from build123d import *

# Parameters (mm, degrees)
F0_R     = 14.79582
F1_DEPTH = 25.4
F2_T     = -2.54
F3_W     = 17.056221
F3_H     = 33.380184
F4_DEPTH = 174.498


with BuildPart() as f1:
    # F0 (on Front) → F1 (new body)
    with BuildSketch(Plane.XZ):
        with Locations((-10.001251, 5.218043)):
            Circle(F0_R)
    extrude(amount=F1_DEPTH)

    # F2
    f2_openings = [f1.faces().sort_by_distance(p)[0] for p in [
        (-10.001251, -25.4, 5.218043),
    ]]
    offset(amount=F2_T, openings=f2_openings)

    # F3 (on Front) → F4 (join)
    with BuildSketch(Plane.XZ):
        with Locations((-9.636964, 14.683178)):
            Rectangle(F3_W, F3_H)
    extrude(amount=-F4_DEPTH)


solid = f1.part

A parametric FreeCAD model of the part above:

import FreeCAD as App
import Part
import Sketcher
from FreeCAD import Vector
Q = App.Units.Quantity


def faces_at(feature, points):
    """Names of the faces that lie closest to the given points."""
    faces = feature.Shape.Faces
    near = lambda p: min(range(len(faces)), key=lambda i: faces[i].distToShape(Part.Vertex(*p))[0])
    return sorted({f"Face{near(p) + 1}" for p in points})

doc = App.newDocument("Part")
body = doc.addObject("PartDesign::Body", "Body")

# Sketch on XZ plane
sketch1 = body.newObject("Sketcher::SketchObject", "Sketch")
sketch1.AttachmentSupport = (doc.getObject("XZ_Plane"), [""])
sketch1.MapMode = "FlatFace"
sketch1.addGeometry(Part.Circle(Vector(-10.001251, 5.218043, 0), Vector(0, 0, 1), 14.79582), False)
sketch1.addConstraint(Sketcher.Constraint("Diameter", 0, Q("29.59164 mm")))
sketch1.addConstraint(Sketcher.Constraint("DistanceX", 0, 3, -1, 1, Q("10.001251 mm")))
sketch1.addConstraint(Sketcher.Constraint("DistanceY", -1, 1, 0, 3, Q("5.218043 mm")))
pad1 = body.newObject("PartDesign::Pad", "Pad")
pad1.Profile = sketch1
pad1.Length = Q("1 in")
doc.recompute()

thickness = body.newObject("PartDesign::Thickness", "Thickness")
thickness.Base = (pad1, faces_at(pad1, [(-10.001, -25.4, 5.218)]))
thickness.Value = Q("0.1 in")
thickness.Reversed = True
thickness.Join = "Arc"

# Sketch on XZ plane
sketch2 = body.newObject("Sketcher::SketchObject", "Sketch001")
sketch2.AttachmentSupport = (doc.getObject("XZ_Plane"), [""])
sketch2.MapMode = "FlatFace"
sketch2.addGeometry(Part.LineSegment(Vector(-18.165074, 31.37327, 0), Vector(-18.165074, -2.006914, 0)), False)
sketch2.addGeometry(Part.LineSegment(Vector(-18.165074, -2.006914, 0), Vector(-1.108853, -2.006914, 0)), False)
sketch2.addGeometry(Part.LineSegment(Vector(-1.108853, -2.006914, 0), Vector(-1.108853, 31.37327, 0)), False)
sketch2.addGeometry(Part.LineSegment(Vector(-1.108853, 31.37327, 0), Vector(-18.165074, 31.37327, 0)), False)
sketch2.addConstraint(Sketcher.Constraint("Coincident", 0, 2, 1, 1))
sketch2.addConstraint(Sketcher.Constraint("Coincident", 1, 2, 2, 1))
sketch2.addConstraint(Sketcher.Constraint("Coincident", 2, 2, 3, 1))
sketch2.addConstraint(Sketcher.Constraint("Coincident", 3, 2, 0, 1))
sketch2.addConstraint(Sketcher.Constraint("Vertical", 0))
sketch2.addConstraint(Sketcher.Constraint("Horizontal", 1))
sketch2.addConstraint(Sketcher.Constraint("Vertical", 2))
sketch2.addConstraint(Sketcher.Constraint("Horizontal", 3))
sketch2.addConstraint(Sketcher.Constraint("DistanceX", 1, 1, 1, 2, Q("17.056221 mm")))
sketch2.addConstraint(Sketcher.Constraint("DistanceY", 0, 2, 0, 1, Q("33.380184 mm")))
sketch2.addConstraint(Sketcher.Constraint("DistanceY", -1, 1, 2, 2, Q("31.37327 mm")))
sketch2.addConstraint(Sketcher.Constraint("DistanceX", 0, 2, -1, 1, Q("18.165074 mm")))
pad2 = body.newObject("PartDesign::Pad", "Pad001")
pad2.Profile = sketch2
pad2.Length = Q("6.87 in")
pad2.Reversed = True

doc.recompute()
